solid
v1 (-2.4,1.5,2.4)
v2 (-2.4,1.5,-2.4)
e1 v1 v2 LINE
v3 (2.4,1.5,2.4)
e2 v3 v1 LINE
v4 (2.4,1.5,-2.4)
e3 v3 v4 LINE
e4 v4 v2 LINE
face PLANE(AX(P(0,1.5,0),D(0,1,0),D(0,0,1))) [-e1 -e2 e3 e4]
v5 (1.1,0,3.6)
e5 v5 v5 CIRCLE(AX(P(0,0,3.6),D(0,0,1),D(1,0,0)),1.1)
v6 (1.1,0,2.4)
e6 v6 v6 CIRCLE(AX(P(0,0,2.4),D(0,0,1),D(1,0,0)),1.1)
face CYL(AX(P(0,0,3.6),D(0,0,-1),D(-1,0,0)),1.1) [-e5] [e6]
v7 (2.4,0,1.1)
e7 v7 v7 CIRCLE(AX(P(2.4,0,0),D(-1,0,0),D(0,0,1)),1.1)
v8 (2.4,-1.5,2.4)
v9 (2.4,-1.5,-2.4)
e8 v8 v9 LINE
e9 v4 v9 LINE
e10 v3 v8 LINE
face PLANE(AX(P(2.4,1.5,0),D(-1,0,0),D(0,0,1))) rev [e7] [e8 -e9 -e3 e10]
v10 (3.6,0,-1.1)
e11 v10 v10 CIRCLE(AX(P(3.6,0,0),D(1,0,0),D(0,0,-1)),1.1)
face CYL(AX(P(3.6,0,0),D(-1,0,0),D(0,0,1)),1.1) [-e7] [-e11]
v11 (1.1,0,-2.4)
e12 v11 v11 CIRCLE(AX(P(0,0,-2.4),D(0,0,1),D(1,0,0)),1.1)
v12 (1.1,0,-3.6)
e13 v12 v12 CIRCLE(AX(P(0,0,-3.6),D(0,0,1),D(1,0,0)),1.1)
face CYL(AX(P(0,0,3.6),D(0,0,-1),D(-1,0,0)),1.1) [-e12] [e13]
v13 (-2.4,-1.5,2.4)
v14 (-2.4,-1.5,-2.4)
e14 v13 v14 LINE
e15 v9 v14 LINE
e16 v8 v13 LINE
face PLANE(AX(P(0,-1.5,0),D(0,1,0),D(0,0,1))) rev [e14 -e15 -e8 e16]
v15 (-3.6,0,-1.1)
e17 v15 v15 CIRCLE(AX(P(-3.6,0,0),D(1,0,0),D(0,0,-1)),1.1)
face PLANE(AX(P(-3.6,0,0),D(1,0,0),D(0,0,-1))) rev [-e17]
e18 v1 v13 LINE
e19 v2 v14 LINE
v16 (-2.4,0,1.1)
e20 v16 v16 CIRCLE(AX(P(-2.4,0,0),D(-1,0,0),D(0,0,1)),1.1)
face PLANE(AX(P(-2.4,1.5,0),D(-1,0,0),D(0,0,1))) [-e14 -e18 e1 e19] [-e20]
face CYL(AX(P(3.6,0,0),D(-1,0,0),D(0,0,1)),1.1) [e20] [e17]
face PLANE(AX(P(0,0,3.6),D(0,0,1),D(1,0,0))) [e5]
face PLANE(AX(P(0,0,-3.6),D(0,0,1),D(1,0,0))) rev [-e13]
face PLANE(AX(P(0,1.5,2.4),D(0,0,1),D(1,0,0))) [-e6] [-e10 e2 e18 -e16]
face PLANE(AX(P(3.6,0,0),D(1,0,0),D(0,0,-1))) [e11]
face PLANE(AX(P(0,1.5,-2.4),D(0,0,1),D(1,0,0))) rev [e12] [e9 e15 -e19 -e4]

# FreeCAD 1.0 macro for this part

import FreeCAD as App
import Part
import Sketcher
from FreeCAD import Vector
Q = App.Units.Quantity

doc = App.newDocument("Part")
body = doc.addObject("PartDesign::Body", "Body")

# Sketch on XY plane
sketch1 = body.newObject("Sketcher::SketchObject", "Sketch")
sketch1.AttachmentSupport = (doc.getObject("XY_Plane"), [""])
sketch1.MapMode = "FlatFace"
sketch1.addGeometry(Part.Circle(Vector(0, 0, 0), Vector(0, 0, 1), 1.1), False)
sketch1.addConstraint(Sketcher.Constraint("Coincident", 0, 3, -1, 1))
sketch1.addConstraint(Sketcher.Constraint("Diameter", 0, Q("2.2 mm")))
pad1 = body.newObject("PartDesign::Pad", "Pad")
pad1.Profile = sketch1
pad1.Length = 7.2
pad1.Midplane = True
doc.recompute()

polarpattern = body.newObject("PartDesign::PolarPattern", "PolarPattern")
polarpattern.Originals = [pad1]
polarpattern.Axis = (doc.getObject("Y_Axis"), [""])
polarpattern.Angle = 360
polarpattern.Occurrences = 4
body.Tip = polarpattern

# Sketch on XZ plane
sketch2 = body.newObject("Sketcher::SketchObject", "Sketch001")
sketch2.AttachmentSupport = (doc.getObject("XZ_Plane"), [""])
sketch2.MapMode = "FlatFace"
sketch2.addGeometry(Part.LineSegment(Vector(-2.4, -2.4, 0), Vector(-2.4, 2.4, 0)), False)
sketch2.addGeometry(Part.LineSegment(Vector(-2.4, 2.4, 0), Vector(2.4, 2.4, 0)), False)
sketch2.addGeometry(Part.LineSegment(Vector(2.4, 2.4, 0), Vector(2.4, -2.4, 0)), False)
sketch2.addGeometry(Part.LineSegment(Vector(2.4, -2.4, 0), Vector(-2.4, -2.4, 0)), False)
sketch2.addConstraint(Sketcher.Constraint("Coincident", 0, 2, 1, 1))
sketch2.addConstraint(Sketcher.Constraint("Coincident", 1, 2, 2, 1))
sketch2.addConstraint(Sketcher.Constraint("Coincident", 2, 2, 3, 1))
sketch2.addConstraint(Sketcher.Constraint("Coincident", 3, 2, 0, 1))
sketch2.addConstraint(Sketcher.Constraint("Vertical", 0))
sketch2.addConstraint(Sketcher.Constraint("Horizontal", 1))
sketch2.addConstraint(Sketcher.Constraint("Vertical", 2))
sketch2.addConstraint(Sketcher.Constraint("Horizontal", 3))
sketch2.addConstraint(Sketcher.Constraint("Symmetric", 0, 2, 2, 2, -1, 1))
sketch2.addConstraint(Sketcher.Constraint("Equal", 3, 0))
sketch2.addConstraint(Sketcher.Constraint("DistanceX", 1, 1, 1, 2, Q("4.8 mm")))
pad2 = body.newObject("PartDesign::Pad", "Pad001")
pad2.Profile = sketch2
pad2.Length = 3
pad2.Midplane = True

doc.recompute()
